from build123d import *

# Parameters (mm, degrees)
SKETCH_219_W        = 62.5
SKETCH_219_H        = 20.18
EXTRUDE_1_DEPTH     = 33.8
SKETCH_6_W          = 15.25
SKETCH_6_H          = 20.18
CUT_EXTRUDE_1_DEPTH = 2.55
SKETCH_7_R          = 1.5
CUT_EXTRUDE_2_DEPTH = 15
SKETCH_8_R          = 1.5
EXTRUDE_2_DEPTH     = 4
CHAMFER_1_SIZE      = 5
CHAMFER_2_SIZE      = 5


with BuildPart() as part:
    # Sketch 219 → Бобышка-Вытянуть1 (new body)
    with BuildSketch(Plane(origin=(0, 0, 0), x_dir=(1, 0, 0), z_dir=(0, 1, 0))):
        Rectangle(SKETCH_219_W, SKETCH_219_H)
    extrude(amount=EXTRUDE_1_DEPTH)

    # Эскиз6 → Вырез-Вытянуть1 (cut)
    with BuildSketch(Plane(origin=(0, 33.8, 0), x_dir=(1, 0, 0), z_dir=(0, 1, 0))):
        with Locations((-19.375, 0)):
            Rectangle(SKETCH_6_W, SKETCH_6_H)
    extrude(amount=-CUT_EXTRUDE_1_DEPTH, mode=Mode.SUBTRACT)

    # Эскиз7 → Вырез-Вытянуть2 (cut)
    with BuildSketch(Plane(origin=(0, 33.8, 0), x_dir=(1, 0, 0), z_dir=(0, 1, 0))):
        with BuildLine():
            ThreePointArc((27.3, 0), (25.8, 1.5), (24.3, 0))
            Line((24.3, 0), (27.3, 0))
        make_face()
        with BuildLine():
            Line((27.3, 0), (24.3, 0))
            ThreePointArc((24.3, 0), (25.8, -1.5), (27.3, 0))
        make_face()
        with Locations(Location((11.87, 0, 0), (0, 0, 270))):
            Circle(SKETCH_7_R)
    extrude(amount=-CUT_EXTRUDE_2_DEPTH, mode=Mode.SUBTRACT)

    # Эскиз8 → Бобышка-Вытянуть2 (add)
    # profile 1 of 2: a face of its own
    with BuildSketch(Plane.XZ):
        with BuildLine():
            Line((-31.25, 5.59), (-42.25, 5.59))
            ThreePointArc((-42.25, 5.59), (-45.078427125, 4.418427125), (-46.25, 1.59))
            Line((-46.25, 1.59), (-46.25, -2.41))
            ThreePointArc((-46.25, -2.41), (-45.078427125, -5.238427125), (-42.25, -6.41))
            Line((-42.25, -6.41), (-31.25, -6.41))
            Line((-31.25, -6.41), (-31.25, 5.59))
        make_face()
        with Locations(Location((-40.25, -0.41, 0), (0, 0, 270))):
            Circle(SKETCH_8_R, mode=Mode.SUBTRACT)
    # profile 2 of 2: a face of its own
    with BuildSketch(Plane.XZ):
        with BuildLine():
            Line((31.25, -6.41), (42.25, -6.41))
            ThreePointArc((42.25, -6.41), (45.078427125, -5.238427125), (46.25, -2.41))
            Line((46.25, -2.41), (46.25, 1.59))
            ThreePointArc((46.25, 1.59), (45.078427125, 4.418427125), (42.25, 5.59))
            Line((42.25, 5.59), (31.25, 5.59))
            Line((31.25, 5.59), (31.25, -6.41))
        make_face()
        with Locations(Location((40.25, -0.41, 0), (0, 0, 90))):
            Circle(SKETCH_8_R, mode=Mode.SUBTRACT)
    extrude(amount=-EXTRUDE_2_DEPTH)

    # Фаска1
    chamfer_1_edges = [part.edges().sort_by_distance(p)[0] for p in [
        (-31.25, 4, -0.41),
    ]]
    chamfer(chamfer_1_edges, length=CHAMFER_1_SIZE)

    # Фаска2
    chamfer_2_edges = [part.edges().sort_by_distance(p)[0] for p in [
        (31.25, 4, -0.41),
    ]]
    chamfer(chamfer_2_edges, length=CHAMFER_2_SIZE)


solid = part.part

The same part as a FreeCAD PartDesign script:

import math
import FreeCAD as App
import Part
import Sketcher


def edges_at(feature, points):
    """Names of the edges that pass closest to the given points."""
    edges = feature.Shape.Edges
    near = lambda p: min(range(len(edges)), key=lambda i: edges[i].distToShape(Part.Vertex(*p))[0])
    return sorted({f"Edge{near(p) + 1}" for p in points})

doc = App.newDocument("Part")
body = doc.addObject("PartDesign::Body", "Body")

sketch1 = body.newObject("Sketcher::SketchObject", "Sketch")
sketch1.AttachmentSupport = (doc.getObject("XZ_Plane"), [""])
sketch1.MapMode = "FlatFace"
sketch1.addGeometry(Part.LineSegment(App.Vector(-31, -10, 0), App.Vector(-31, 10, 0)), False)
sketch1.addGeometry(Part.LineSegment(App.Vector(-31, 10, 0), App.Vector(31, 10, 0)), False)
sketch1.addGeometry(Part.LineSegment(App.Vector(31, 10, 0), App.Vector(31, -10, 0)), False)
sketch1.addGeometry(Part.LineSegment(App.Vector(31, -10, 0), App.Vector(-31, -10, 0)), False)
sketch1.addConstraint(Sketcher.Constraint("Coincident", 0, 2, 1, 1))
sketch1.addConstraint(Sketcher.Constraint("Coincident", 1, 2, 2, 1))
sketch1.addConstraint(Sketcher.Constraint("Coincident", 2, 2, 3, 1))
sketch1.addConstraint(Sketcher.Constraint("Coincident", 3, 2, 0, 1))
sketch1.addConstraint(Sketcher.Constraint("Vertical", 0))
sketch1.addConstraint(Sketcher.Constraint("Horizontal", 1))
sketch1.addConstraint(Sketcher.Constraint("Vertical", 2))
sketch1.addConstraint(Sketcher.Constraint("Horizontal", 3))
sketch1.addConstraint(Sketcher.Constraint("Symmetric", 0, 2, 2, 2, -1, 1))
sketch1.addConstraint(Sketcher.Constraint("DistanceX", 1, 1, 1, 2, 62.5))
sketch1.addConstraint(Sketcher.Constraint("DistanceY", 0, 1, 0, 2, 20.18))
pad1 = body.newObject("PartDesign::Pad", "Pad")
pad1.Profile = sketch1
pad1.Length = 33.8
pad1.Reversed = True

sketch2 = body.newObject("Sketcher::SketchObject", "Sketch001")
sketch2.AttachmentSupport = (doc.getObject("XZ_Plane"), [""])
sketch2.MapMode = "FlatFace"
sketch2.AttachmentOffset = App.Placement(App.Vector(0, 0, -33.8), App.Rotation())
sketch2.addGeometry(Part.LineSegment(App.Vector(-27, -10, 0), App.Vector(-27, 10, 0)), False)
sketch2.addGeometry(Part.LineSegment(App.Vector(-27, 10, 0), App.Vector(-12, 10, 0)), False)
sketch2.addGeometry(Part.LineSegment(App.Vector(-12, 10, 0), App.Vector(-12, -10, 0)), False)
sketch2.addGeometry(Part.LineSegment(App.Vector(-12, -10, 0), App.Vector(-27, -10, 0)), False)
sketch2.addConstraint(Sketcher.Constraint("Coincident", 0, 2, 1, 1))
sketch2.addConstraint(Sketcher.Constraint("Coincident", 1, 2, 2, 1))
sketch2.addConstraint(Sketcher.Constraint("Coincident", 2, 2, 3, 1))
sketch2.addConstraint(Sketcher.Constraint("Coincident", 3, 2, 0, 1))
sketch2.addConstraint(Sketcher.Constraint("Vertical", 0))
sketch2.addConstraint(Sketcher.Constraint("Horizontal", 1))
sketch2.addConstraint(Sketcher.Constraint("Vertical", 2))
sketch2.addConstraint(Sketcher.Constraint("Horizontal", 3))
sketch2.addConstraint(Sketcher.Constraint("DistanceX", 0, 2, -1, 1, 27.0))
sketch2.addConstraint(Sketcher.Constraint("DistanceX", 1, 1, 1, 2, 15.25))
sketch2.addConstraint(Sketcher.Constraint("DistanceY", 0, 1, 0, 2, 20.18))
sketch2.addConstraint(Sketcher.Constraint("DistanceY", -1, 1, 0, 2, 10.09))
pocket1 = body.newObject("PartDesign::Pocket", "Pocket")
pocket1.Profile = sketch2
pocket1.Length = 2.55
pocket1.Reversed = True

sketch3 = body.newObject("Sketcher::SketchObject", "Sketch002")
sketch3.AttachmentSupport = (doc.getObject("XZ_Plane"), [""])
sketch3.MapMode = "FlatFace"
sketch3.AttachmentOffset = App.Placement(App.Vector(0, 0, -33.8), App.Rotation())
sketch3.addGeometry(Part.Circle(App.Vector(25.8, 0, 0), App.Vector(0, 0, 1), 1.5), False)
sketch3.addGeometry(Part.Circle(App.Vector(11.9, 0, 0), App.Vector(0, 0, 1), 1.5), False)
sketch3.addConstraint(Sketcher.Constraint("Equal", 0, 1))
sketch3.addConstraint(Sketcher.Constraint("PointOnObject", 0, 3, -1))
sketch3.addConstraint(Sketcher.Constraint("PointOnObject", 1, 3, -1))
sketch3.addConstraint(Sketcher.Constraint("Diameter", 0, 3.0))
sketch3.addConstraint(Sketcher.Constraint("DistanceX", -1, 1, 0, 3, 25.8))
sketch3.addConstraint(Sketcher.Constraint("DistanceX", -1, 1, 1, 3, 11.87))
pocket2 = body.newObject("PartDesign::Pocket", "Pocket001")
pocket2.Profile = sketch3
pocket2.Length = 15
pocket2.Reversed = True

sketch4 = body.newObject("Sketcher::SketchObject", "Sketch003")
sketch4.AttachmentSupport = (doc.getObject("XZ_Plane"), [""])
sketch4.MapMode = "FlatFace"
sketch4.addGeometry(Part.LineSegment(App.Vector(-31.2, 5.6, 0), App.Vector(-42.2, 5.6, 0)), False)
sketch4.addGeometry(Part.ArcOfCircle(Part.Circle(App.Vector(-42.3, 1.6, 0), App.Vector(0, 0, 1), 4), math.radians(90), math.radians(180)), False)
sketch4.addGeometry(Part.LineSegment(App.Vector(-46.2, 1.6, 0), App.Vector(-46.2, -2.4, 0)), False)
sketch4.addGeometry(Part.ArcOfCircle(Part.Circle(App.Vector(-42.3, -2.4, 0), App.Vector(0, 0, 1), 4), math.radians(180), math.radians(270)), False)
sketch4.addGeometry(Part.LineSegment(App.Vector(-42.2, -6.4, 0), App.Vector(-31.2, -6.4, 0)), False)
sketch4.addGeometry(Part.LineSegment(App.Vector(-31.2, -6.4, 0), App.Vector(-31.2, 5.6, 0)), False)
sketch4.addGeometry(Part.Circle(App.Vector(-40.2, -0.4, 0), App.Vector(0, 0, 1), 1.5), False)
sketch4.addGeometry(Part.LineSegment(App.Vector(31.2, -6.4, 0), App.Vector(42.2, -6.4, 0)), False)
sketch4.addGeometry(Part.ArcOfCircle(Part.Circle(App.Vector(42.3, -2.4, 0), App.Vector(0, 0, 1), 4), math.radians(-90), math.radians(0)), False)
sketch4.addGeometry(Part.LineSegment(App.Vector(46.2, -2.4, 0), App.Vector(46.2, 1.6, 0)), False)
sketch4.addGeometry(Part.ArcOfCircle(Part.Circle(App.Vector(42.3, 1.6, 0), App.Vector(0, 0, 1), 4), math.radians(0), math.radians(90)), False)
sketch4.addGeometry(Part.LineSegment(App.Vector(42.2, 5.6, 0), App.Vector(31.2, 5.6, 0)), False)
sketch4.addGeometry(Part.LineSegment(App.Vector(31.2, 5.6, 0), App.Vector(31.2, -6.4, 0)), False)
sketch4.addGeometry(Part.Circle(App.Vector(40.2, -0.4, 0), App.Vector(0, 0, 1), 1.5), False)
sketch4.addConstraint(Sketcher.Constraint("Tangent", 0, 2, 1, 1))
sketch4.addConstraint(Sketcher.Constraint("Tangent", 1, 2, 2, 1))
sketch4.addConstraint(Sketcher.Constraint("Tangent", 2, 2, 3, 1))
sketch4.addConstraint(Sketcher.Constraint("Tangent", 3, 2, 4, 1))
sketch4.addConstraint(Sketcher.Constraint("Coincident", 4, 2, 5, 1))
sketch4.addConstraint(Sketcher.Constraint("Coincident", 5, 2, 0, 1))
sketch4.addConstraint(Sketcher.Constraint("Tangent", 7, 2, 8, 1))
sketch4.addConstraint(Sketcher.Constraint("Tangent", 8, 2, 9, 1))
sketch4.addConstraint(Sketcher.Constraint("Tangent", 9, 2, 10, 1))
sketch4.addConstraint(Sketcher.Constraint("Tangent", 10, 2, 11, 1))
sketch4.addConstraint(Sketcher.Constraint("Coincident", 11, 2, 12, 1))
sketch4.addConstraint(Sketcher.Constraint("Coincident", 12, 2, 7, 1))
sketch4.addConstraint(Sketcher.Constraint("Horizontal", 0))
sketch4.addConstraint(Sketcher.Constraint("Vertical", 2))
sketch4.addConstraint(Sketcher.Constraint("Horizontal", 4))
sketch4.addConstraint(Sketcher.Constraint("Vertical", 5))
sketch4.addConstraint(Sketcher.Constraint("Horizontal", 7))
sketch4.addConstraint(Sketcher.Constraint("Vertical", 9))
sketch4.addConstraint(Sketcher.Constraint("Horizontal", 11))
sketch4.addConstraint(Sketcher.Constraint("Vertical", 12))
sketch4.addConstraint(Sketcher.Constraint("Equal", 1, 3))
sketch4.addConstraint(Sketcher.Constraint("Equal", 3, 8))
sketch4.addConstraint(Sketcher.Constraint("Equal", 8, 10))
sketch4.addConstraint(Sketcher.Constraint("Equal", 6, 13))
sketch4.addConstraint(Sketcher.Constraint("Symmetric", 3, 3, 8, 3, -2))
sketch4.addConstraint(Sketcher.Constraint("Symmetric", 6, 3, 13, 3, -2))
sketch4.addConstraint(Sketcher.Constraint("Symmetric", 5, 2, 11, 2, -2))
sketch4.addConstraint(Sketcher.Constraint("Diameter", 6, 3.0))
sketch4.addConstraint(Sketcher.Constraint("Radius", 1, 4.0))
sketch4.addConstraint(Sketcher.Constraint("DistanceX", 0, 2, 0, 1, 11.0))
sketch4.addConstraint(Sketcher.Constraint("DistanceY", 2, 2, 2, 1, 4.0))
sketch4.addConstraint(Sketcher.Constraint("DistanceX", 3, 3, 6, 3, 2.0))
sketch4.addConstraint(Sketcher.Constraint("DistanceY", 3, 3, 6, 3, 2.0))
sketch4.addConstraint(Sketcher.Constraint("DistanceX", 6, 3, 8, 3, 82.5))
sketch4.addConstraint(Sketcher.Constraint("DistanceY", -1, 1, 1, 3, 1.59))
pad2 = body.newObject("PartDesign::Pad", "Pad001")
pad2.Profile = sketch4
pad2.Length = 4
pad2.Reversed = True
doc.recompute()

chamfer = body.newObject("PartDesign::Chamfer", "Chamfer")
chamfer.Base = (pad2, edges_at(pad2, [(-31.25, 4, -0.41)]))
chamfer.Size = 5
doc.recompute()

chamfer2 = body.newObject("PartDesign::Chamfer", "Chamfer001")
chamfer2.Base = (chamfer, edges_at(chamfer, [(31.25, 4, -0.41)]))
chamfer2.Size = 5

doc.recompute()
